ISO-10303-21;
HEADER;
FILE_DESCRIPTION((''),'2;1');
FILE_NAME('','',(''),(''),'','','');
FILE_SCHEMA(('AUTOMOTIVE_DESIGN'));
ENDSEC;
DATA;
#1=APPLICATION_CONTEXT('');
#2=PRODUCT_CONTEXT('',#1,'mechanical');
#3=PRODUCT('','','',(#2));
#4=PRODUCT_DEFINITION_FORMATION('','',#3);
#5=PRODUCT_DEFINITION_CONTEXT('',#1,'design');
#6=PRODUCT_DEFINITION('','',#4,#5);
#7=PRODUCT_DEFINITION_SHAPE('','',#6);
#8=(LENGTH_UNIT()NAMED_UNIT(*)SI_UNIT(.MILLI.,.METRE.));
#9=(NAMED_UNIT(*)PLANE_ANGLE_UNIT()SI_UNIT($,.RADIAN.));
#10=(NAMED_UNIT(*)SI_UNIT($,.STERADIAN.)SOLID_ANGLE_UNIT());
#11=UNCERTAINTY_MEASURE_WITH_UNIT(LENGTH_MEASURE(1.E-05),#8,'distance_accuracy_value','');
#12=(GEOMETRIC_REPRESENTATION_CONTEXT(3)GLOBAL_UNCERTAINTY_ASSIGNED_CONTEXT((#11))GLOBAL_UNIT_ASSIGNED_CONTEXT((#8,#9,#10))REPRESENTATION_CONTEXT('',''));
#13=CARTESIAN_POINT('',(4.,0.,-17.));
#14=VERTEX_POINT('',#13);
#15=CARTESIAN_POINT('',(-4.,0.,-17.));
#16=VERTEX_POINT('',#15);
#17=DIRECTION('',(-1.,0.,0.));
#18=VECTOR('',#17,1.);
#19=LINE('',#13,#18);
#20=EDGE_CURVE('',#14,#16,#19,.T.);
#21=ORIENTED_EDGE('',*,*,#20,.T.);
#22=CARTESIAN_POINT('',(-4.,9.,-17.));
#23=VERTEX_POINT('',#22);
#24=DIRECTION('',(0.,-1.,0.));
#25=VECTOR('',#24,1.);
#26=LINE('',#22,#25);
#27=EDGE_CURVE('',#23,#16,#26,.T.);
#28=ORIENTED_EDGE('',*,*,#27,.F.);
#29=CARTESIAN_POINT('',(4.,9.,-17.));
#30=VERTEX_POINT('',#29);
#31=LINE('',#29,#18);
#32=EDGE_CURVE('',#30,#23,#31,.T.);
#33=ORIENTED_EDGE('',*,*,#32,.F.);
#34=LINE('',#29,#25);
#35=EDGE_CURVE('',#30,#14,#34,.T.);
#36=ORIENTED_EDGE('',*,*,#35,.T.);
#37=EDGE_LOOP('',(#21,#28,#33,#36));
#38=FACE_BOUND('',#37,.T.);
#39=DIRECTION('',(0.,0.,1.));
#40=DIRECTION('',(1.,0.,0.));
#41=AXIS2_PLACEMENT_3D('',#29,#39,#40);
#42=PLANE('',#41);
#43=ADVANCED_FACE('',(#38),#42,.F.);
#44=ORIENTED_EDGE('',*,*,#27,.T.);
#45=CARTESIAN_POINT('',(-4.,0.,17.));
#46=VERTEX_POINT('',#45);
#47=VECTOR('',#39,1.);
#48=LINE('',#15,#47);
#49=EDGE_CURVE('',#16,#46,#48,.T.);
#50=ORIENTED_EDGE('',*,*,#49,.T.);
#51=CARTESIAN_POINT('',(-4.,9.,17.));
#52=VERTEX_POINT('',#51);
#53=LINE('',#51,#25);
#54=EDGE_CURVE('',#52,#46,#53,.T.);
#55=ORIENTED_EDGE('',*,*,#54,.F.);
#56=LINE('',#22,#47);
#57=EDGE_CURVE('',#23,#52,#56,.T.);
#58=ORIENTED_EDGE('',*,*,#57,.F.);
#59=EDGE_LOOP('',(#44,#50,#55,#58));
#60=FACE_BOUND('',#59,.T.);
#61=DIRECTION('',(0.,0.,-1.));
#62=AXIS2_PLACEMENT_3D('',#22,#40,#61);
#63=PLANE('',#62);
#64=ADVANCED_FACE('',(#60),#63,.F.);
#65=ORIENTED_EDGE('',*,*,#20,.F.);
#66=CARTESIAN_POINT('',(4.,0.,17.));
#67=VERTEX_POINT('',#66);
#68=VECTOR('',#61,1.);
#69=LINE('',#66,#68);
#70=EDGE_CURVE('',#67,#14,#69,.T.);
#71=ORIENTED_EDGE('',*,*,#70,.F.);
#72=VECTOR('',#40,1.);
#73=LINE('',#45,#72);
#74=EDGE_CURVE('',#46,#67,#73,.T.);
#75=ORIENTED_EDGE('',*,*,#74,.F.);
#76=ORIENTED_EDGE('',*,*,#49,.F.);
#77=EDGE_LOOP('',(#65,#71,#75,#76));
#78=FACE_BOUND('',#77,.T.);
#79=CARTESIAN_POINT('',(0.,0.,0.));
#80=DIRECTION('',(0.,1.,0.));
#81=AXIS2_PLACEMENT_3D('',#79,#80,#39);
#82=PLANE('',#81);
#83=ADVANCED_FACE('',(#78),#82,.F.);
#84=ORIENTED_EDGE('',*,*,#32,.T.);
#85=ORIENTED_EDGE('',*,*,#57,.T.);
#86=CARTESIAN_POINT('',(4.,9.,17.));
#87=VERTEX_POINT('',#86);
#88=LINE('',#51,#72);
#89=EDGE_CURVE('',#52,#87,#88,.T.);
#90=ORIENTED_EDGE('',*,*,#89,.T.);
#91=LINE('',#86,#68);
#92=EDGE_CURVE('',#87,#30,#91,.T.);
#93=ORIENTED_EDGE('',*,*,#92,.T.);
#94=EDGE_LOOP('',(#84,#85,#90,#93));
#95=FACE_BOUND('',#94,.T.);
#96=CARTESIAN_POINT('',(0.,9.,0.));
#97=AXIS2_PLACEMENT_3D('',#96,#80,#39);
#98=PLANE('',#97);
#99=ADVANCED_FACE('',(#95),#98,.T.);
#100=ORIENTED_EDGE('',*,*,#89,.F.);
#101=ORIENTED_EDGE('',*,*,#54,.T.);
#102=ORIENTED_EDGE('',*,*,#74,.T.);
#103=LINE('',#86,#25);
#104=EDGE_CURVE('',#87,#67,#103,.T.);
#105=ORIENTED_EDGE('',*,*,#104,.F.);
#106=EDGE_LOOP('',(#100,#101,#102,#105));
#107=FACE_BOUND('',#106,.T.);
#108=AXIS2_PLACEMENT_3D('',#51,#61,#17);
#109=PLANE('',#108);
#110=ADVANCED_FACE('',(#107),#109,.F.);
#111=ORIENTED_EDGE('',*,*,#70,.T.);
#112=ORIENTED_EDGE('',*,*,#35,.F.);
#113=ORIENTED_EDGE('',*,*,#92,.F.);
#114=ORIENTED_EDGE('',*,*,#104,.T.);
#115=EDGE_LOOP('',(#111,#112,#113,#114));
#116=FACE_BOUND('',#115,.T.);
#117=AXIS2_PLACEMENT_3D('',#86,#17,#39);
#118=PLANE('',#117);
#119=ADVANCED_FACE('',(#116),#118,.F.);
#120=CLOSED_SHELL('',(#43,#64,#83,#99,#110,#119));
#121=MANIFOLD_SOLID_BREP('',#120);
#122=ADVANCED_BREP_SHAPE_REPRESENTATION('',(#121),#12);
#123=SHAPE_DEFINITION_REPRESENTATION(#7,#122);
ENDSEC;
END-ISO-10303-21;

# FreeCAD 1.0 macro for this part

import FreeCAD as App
import Part
import Sketcher

V = App.Vector
Q = App.Units.Quantity

doc = App.newDocument("Part")
params = doc.addObject("Spreadsheet::Sheet", "Params")
for row, (alias, value) in enumerate([
    ("sketch1_width", "8 mm"),
    ("sketch1_height", "34 mm"),
    ("pad1_length", "9 mm"),
], start=1):
    params.set(f"A{row}", alias)
    params.set(f"B{row}", "=" + value)
    params.setAlias(f"B{row}", alias)

body = doc.addObject("PartDesign::Body", "Body")

sketch1 = body.newObject("Sketcher::SketchObject", "Sketch")
sketch1.AttachmentSupport = (doc.getObject("XZ_Plane"), [""])
sketch1.MapMode = "FlatFace"
sketch1.addGeometry([
    Part.LineSegment(V(-4, -17, 0), V(-4, 17, 0)),
    Part.LineSegment(V(-4, 17, 0), V(4, 17, 0)),
    Part.LineSegment(V(4, 17, 0), V(4, -17, 0)),
    Part.LineSegment(V(4, -17, 0), V(-4, -17, 0)),
], False)
sketch1.addConstraint([
    Sketcher.Constraint("Coincident", 0, 2, 1, 1),
    Sketcher.Constraint("Coincident", 1, 2, 2, 1),
    Sketcher.Constraint("Coincident", 2, 2, 3, 1),
    Sketcher.Constraint("Coincident", 3, 2, 0, 1),
    Sketcher.Constraint("Vertical", 0),
    Sketcher.Constraint("Horizontal", 1),
    Sketcher.Constraint("Vertical", 2),
    Sketcher.Constraint("Horizontal", 3),
    Sketcher.Constraint("Symmetric", 0, 2, 2, 2, -1, 1),
    Sketcher.Constraint("DistanceX", 1, 1, 1, 2, Q("8 mm")),
    Sketcher.Constraint("DistanceY", 0, 1, 0, 2, Q("34 mm")),
])
sketch1.setExpression("Constraints[9]", "Params.sketch1_width")
sketch1.setExpression("Constraints[10]", "Params.sketch1_height")
pad1 = body.newObject("PartDesign::Pad", "Pad")
pad1.Profile = sketch1
pad1.setExpression("Length", "Params.pad1_length")
pad1.Reversed = True

doc.recompute()
